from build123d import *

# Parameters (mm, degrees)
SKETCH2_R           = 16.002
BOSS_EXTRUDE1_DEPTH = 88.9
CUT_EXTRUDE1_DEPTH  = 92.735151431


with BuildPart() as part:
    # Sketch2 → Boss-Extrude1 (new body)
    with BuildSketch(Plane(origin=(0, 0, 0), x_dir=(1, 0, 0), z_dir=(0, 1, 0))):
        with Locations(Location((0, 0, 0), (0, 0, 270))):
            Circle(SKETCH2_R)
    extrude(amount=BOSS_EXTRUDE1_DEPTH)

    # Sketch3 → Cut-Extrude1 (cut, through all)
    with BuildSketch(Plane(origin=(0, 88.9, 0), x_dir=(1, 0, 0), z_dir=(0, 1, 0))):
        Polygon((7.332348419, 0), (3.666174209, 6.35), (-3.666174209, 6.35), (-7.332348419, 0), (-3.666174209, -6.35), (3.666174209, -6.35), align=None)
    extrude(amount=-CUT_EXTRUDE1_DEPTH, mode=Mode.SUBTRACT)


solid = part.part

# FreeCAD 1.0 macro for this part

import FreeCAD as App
import Part
import Sketcher
Q = App.Units.Quantity

doc = App.newDocument("Part")
body = doc.addObject("PartDesign::Body", "Body")

# Sketch on XZ plane
sketch1 = body.newObject("Sketcher::SketchObject", "Sketch")
sketch1.AttachmentSupport = (doc.getObject("XZ_Plane"), [""])
sketch1.MapMode = "FlatFace"
sketch1.addGeometry(Part.Circle(App.Vector(0, 0, 0), App.Vector(0, 0, 1), 16), False)
sketch1.addConstraint([
    Sketcher.Constraint("Coincident", 0, 3, -1, 1),
    Sketcher.Constraint("Diameter", 0, Q("1.26 in")),
])
pad1 = body.newObject("PartDesign::Pad", "Pad")
pad1.Profile = sketch1
pad1.Length = Q("3.5 in")
pad1.Reversed = True

# Sketch on XZ plane
sketch2 = body.newObject("Sketcher::SketchObject", "Sketch001")
sketch2.AttachmentSupport = (doc.getObject("XZ_Plane"), [""])
sketch2.MapMode = "FlatFace"
sketch2.AttachmentOffset = App.Placement(App.Vector(0, 0, -3.5 * 25.4), App.Rotation())
sketch2.addGeometry([
    Part.LineSegment(App.Vector(7, 0, 0), App.Vector(4, -6, 0)),  # 0
    Part.LineSegment(App.Vector(4, -6, 0), App.Vector(-4, -6, 0)),  # 1
    Part.LineSegment(App.Vector(-4, -6, 0), App.Vector(-7, 0, 0)),  # 2
    Part.LineSegment(App.Vector(-7, 0, 0), App.Vector(-4, 6, 0)),  # 3
    Part.LineSegment(App.Vector(-4, 6, 0), App.Vector(4, 6, 0)),  # 4
    Part.LineSegment(App.Vector(4, 6, 0), App.Vector(7, 0, 0)),  # 5
], False)
sketch2.addConstraint([
    Sketcher.Constraint("Coincident", 0, 2, 1, 1),
    Sketcher.Constraint("Coincident", 1, 2, 2, 1),
    Sketcher.Constraint("Coincident", 2, 2, 3, 1),
    Sketcher.Constraint("Coincident", 3, 2, 4, 1),
    Sketcher.Constraint("Coincident", 4, 2, 5, 1),
    Sketcher.Constraint("Coincident", 5, 2, 0, 1),
    Sketcher.Constraint("Horizontal", 1),
    Sketcher.Constraint("Horizontal", 4),
    Sketcher.Constraint("Symmetric", 0, 2, 3, 2, -1, 1),
    Sketcher.Constraint("Symmetric", 2, 2, 5, 2, -1, 1),
    Sketcher.Constraint("PointOnObject", 2, 2, -1),
    Sketcher.Constraint("Parallel", 2, 5),
    Sketcher.Constraint("Vertical", 1, 2, 3, 2),
    Sketcher.Constraint("Angle", 0, Q("-120 deg")),
    Sketcher.Constraint("DistanceY", 1, 2, 3, 2, Q("0.5 in")),
    Sketcher.Constraint("DistanceX", 1, 2, 1, 1, 7.332348),
])
pocket1 = body.newObject("PartDesign::Pocket", "Pocket")
pocket1.Profile = sketch2
pocket1.Type = "ThroughAll"
pocket1.Reversed = True

doc.recompute()
